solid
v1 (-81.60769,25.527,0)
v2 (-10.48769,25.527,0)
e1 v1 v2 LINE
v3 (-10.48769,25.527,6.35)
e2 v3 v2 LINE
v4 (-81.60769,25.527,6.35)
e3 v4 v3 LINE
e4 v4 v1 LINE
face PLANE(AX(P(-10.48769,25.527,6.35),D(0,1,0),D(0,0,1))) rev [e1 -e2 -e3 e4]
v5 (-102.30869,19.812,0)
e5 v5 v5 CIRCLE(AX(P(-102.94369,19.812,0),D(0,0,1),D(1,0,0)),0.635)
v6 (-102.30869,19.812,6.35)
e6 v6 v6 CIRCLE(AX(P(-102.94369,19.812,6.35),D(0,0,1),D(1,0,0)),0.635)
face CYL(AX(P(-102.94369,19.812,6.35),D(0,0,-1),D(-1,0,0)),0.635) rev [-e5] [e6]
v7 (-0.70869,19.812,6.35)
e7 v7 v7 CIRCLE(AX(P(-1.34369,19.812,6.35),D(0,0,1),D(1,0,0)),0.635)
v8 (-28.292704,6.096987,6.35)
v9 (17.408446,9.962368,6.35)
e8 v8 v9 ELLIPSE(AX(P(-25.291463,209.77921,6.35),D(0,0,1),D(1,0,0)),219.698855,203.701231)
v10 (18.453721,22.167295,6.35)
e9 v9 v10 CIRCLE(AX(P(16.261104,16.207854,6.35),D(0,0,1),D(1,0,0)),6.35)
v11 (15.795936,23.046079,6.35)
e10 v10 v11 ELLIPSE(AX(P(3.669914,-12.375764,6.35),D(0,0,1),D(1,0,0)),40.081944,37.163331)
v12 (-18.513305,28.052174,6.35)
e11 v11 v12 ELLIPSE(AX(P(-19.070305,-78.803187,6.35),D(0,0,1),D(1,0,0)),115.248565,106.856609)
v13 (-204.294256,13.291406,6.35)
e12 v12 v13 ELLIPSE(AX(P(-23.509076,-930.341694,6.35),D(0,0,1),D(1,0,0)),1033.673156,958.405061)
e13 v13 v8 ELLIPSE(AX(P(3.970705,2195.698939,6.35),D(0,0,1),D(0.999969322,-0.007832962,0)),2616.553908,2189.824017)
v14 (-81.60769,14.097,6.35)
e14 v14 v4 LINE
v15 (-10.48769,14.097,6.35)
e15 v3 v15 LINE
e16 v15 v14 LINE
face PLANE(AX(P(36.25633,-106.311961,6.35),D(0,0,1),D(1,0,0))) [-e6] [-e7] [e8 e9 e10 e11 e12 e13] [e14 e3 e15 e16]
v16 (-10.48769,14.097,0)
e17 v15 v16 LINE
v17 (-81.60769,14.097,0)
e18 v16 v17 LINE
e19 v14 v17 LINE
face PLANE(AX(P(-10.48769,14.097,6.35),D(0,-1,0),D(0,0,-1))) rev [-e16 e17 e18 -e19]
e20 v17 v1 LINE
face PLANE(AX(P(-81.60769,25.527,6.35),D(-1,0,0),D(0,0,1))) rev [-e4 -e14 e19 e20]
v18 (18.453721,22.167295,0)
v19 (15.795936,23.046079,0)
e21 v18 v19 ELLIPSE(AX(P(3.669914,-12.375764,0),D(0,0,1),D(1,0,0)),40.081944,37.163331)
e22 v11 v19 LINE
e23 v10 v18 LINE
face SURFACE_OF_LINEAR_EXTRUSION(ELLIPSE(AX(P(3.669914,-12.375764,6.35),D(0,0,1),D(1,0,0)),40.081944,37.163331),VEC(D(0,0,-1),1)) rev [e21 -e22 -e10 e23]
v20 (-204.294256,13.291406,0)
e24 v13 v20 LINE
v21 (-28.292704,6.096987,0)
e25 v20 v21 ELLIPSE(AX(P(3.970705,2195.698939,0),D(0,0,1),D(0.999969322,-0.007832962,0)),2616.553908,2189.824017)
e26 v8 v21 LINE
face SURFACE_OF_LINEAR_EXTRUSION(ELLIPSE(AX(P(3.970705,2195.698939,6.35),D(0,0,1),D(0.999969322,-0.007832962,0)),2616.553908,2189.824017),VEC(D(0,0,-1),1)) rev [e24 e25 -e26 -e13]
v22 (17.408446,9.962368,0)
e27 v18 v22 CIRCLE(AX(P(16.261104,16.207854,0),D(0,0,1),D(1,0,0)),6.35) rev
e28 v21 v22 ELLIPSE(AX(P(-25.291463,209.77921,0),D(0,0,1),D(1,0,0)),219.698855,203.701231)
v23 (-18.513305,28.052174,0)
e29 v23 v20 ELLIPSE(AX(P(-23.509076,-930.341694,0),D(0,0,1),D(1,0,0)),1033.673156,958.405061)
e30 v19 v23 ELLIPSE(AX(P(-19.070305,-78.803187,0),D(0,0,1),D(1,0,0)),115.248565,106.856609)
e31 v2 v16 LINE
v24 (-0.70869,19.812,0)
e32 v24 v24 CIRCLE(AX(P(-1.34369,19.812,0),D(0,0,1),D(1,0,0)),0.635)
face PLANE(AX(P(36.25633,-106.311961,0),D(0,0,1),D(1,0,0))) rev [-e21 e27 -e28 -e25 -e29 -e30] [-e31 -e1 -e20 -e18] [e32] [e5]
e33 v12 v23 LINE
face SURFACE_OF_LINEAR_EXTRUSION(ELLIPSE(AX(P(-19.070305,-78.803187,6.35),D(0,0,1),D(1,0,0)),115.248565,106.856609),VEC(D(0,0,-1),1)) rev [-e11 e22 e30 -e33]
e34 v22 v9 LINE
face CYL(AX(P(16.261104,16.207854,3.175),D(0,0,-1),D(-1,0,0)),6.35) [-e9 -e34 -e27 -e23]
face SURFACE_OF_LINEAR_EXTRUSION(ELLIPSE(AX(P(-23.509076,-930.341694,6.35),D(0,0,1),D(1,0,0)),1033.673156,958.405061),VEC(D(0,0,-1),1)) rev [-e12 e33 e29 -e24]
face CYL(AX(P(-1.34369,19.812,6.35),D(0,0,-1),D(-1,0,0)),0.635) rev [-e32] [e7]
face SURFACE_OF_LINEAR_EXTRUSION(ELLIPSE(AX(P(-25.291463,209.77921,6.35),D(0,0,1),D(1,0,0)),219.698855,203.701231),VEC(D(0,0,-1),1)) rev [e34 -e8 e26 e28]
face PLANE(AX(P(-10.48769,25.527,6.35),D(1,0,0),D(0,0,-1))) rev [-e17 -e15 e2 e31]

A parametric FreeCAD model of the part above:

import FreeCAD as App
import Part
import Sketcher
Q = App.Units.Quantity


def edges_at(feature, points):
    """Names of the edges that pass closest to the given points."""
    edges = feature.Shape.Edges
    near = lambda p: min(range(len(edges)), key=lambda i: edges[i].distToShape(Part.Vertex(*p))[0])
    return sorted({f"Edge{near(p) + 1}" for p in points})


def add_polygon(sketch, points):
    """Adds a closed chain of lines whose ends are joined by coincident constraints."""
    first, n = sketch.GeometryCount, len(points)
    for a, b in zip(points, points[1:] + points[:1]):
        sketch.addGeometry(Part.LineSegment(App.Vector(*a, 0), App.Vector(*b, 0)), False)
    for i in range(n):
        sketch.addConstraint(Sketcher.Constraint("Coincident", first + i, 2, first + (i + 1) % n, 1))

doc = App.newDocument("Part")
body = doc.addObject("PartDesign::Body", "Body")

# Sketch on XY plane
sketch1 = doc.addObject("Sketcher::SketchObject", "Sketch")
body.addObject(sketch1)
sketch1.AttachmentSupport = (doc.XY_Plane, [""])
sketch1.MapMode = "FlatFace"
sketch1.addGeometry(Part.BSplineCurve([App.Vector(36.979706, 32.461234, 0), App.Vector(-84.593484, 33.006023, 0), App.Vector(-204.294256, 13.291406, 0)], [3, 3], [1.565963281, 1.746596348], False, 2, [1, 0.995924234, 1], False), False)
sketch1.addGeometry(Part.BSplineCurve([App.Vector(-204.294256, 13.291406, 0), App.Vector(-90.184781, 5.397939, 0), App.Vector(24.279188, 3.948005, 0)], [3, 3], [4.63926443, 4.706613661], False, 2, [1, 0.999433064, 1], False), False)
sketch1.addGeometry(Part.BSplineCurve([App.Vector(24.279188, 3.948005, 0), App.Vector(64.568077, 3.437659, 0), App.Vector(103.433891, 13.291406, 0)], [3, 3], [4.698727851, 4.979307673], False, 2, [1, 0.9901755, 1], False), False)
sketch1.addGeometry(Part.BSplineCurve([App.Vector(103.433891, 13.291406, 0), App.Vector(94.233758, 22.223302, 0), App.Vector(81.537163, 25.959813, 0)], [3, 3], [0.762399197, 1.263449558], False, 2, [1, 0.968782356, 1], False), False)
sketch1.addGeometry(Part.BSplineCurve([App.Vector(81.537163, 25.959813, 0), App.Vector(59.792823, 32.359005, 0), App.Vector(36.979706, 32.461234, 0)], [3, 3], [1.263449558, 1.565963281], False, 2, [1, 0.988582474, 1], False), False)
sketch1.addConstraint(Sketcher.Constraint("Block", 0))
sketch1.addConstraint(Sketcher.Constraint("Block", 1))
sketch1.addConstraint(Sketcher.Constraint("Block", 2))
sketch1.addConstraint(Sketcher.Constraint("Block", 3))
sketch1.addConstraint(Sketcher.Constraint("Block", 4))
pad1 = doc.addObject("PartDesign::Pad", "Pad")
body.addObject(pad1)
pad1.Profile = sketch1
pad1.Length = Q("0.25 in")
doc.recompute()

fillet = doc.addObject("PartDesign::Fillet", "Fillet")
body.addObject(fillet)
fillet.Base = (pad1, edges_at(pad1, [(103.434, 13.291, 3.175)]))
fillet.Radius = Q("0.25 in")

# Sketch on XY plane
sketch2 = doc.addObject("Sketcher::SketchObject", "Sketch001")
body.addObject(sketch2)
sketch2.AttachmentSupport = (doc.XY_Plane, [""])
sketch2.MapMode = "FlatFace"
add_polygon(sketch2, [(-10, 26), (-10, 14), (-82, 14), (-82, 26)])  # lines 0-3
sketch2.addConstraint(Sketcher.Constraint("Vertical", 0))
sketch2.addConstraint(Sketcher.Constraint("Horizontal", 1))
sketch2.addConstraint(Sketcher.Constraint("Vertical", 2))
sketch2.addConstraint(Sketcher.Constraint("Horizontal", 3))
sketch2.addConstraint(Sketcher.Constraint("DistanceX", 1, 2, 1, 1, Q("2.8 in")))
sketch2.addConstraint(Sketcher.Constraint("DistanceY", 0, 2, 0, 1, Q("0.45 in")))
sketch2.addConstraint(Sketcher.Constraint("DistanceY", -1, 1, 0, 2, Q("0.555 in")))
sketch2.addConstraint(Sketcher.Constraint("DistanceX", 0, 2, -1, 1, Q("10.48769 mm")))
pocket1 = doc.addObject("PartDesign::Pocket", "Pocket")
body.addObject(pocket1)
pocket1.Profile = sketch2
pocket1.Type = "ThroughAll"
pocket1.Reversed = True

# Sketch on XY plane
sketch3 = doc.addObject("Sketcher::SketchObject", "Sketch002")
body.addObject(sketch3)
sketch3.AttachmentSupport = (doc.XY_Plane, [""])
sketch3.MapMode = "FlatFace"
sketch3.addGeometry(Part.Circle(App.Vector(-1.3, 19.8, 0), App.Vector(0, 0, 1), 0.6), False)
sketch3.addGeometry(Part.Circle(App.Vector(-102.9, 19.8, 0), App.Vector(0, 0, 1), 0.6), False)
sketch3.addConstraint(Sketcher.Constraint("Equal", 0, 1))
sketch3.addConstraint(Sketcher.Constraint("Horizontal", 0, 3, 1, 3))
sketch3.addConstraint(Sketcher.Constraint("Diameter", 0, Q("0.05 in")))
sketch3.addConstraint(Sketcher.Constraint("DistanceX", 1, 3, 0, 3, Q("4 in")))
sketch3.addConstraint(Sketcher.Constraint("DistanceY", -1, 1, 0, 3, Q("0.78 in")))
sketch3.addConstraint(Sketcher.Constraint("DistanceX", 0, 3, -1, 1, Q("1.34369 mm")))
pocket2 = doc.addObject("PartDesign::Pocket", "Pocket001")
body.addObject(pocket2)
pocket2.Profile = sketch3
pocket2.Type = "ThroughAll"
pocket2.Reversed = True

# Sketch on XY plane
sketch4 = doc.addObject("Sketcher::SketchObject", "Sketch003")
body.addObject(sketch4)
sketch4.AttachmentSupport = (doc.XY_Plane, [""])
sketch4.MapMode = "FlatFace"
add_polygon(sketch4, [(-235.343, 63.525), (-235.343, -27.126), (125.822, -27.126), (125.822, 63.525)])  # lines 0-3
sketch4.addGeometry(Part.BSplineCurve([App.Vector(-18.513305, 28.052174, 0), App.Vector(-112.124662, 28.471661, 0), App.Vector(-204.294256, 13.291406, 0)], [3, 3], [1.565963281, 1.746596348], False, 2, [1, 0.995924234, 1], False), False)  # 4
sketch4.addGeometry(Part.BSplineCurve([App.Vector(15.795936, 23.046079, 0), App.Vector(-0.947205, 27.973457, 0), App.Vector(-18.513305, 28.052174, 0)], [3, 3], [1.263449558, 1.565963281], False, 2, [1, 0.988582474, 1], False), False)  # 5
sketch4.addGeometry(Part.BSplineCurve([App.Vector(32.656417, 13.291406, 0), App.Vector(25.572315, 20.168966, 0), App.Vector(15.795936, 23.046079, 0)], [3, 3], [0.762399197, 1.263449558], False, 2, [1, 0.968782356, 1], False), False)  # 6
sketch4.addGeometry(Part.BSplineCurve([App.Vector(-28.292704, 6.096987, 0), App.Vector(2.72974, 5.704021, 0), App.Vector(32.656417, 13.291406, 0)], [3, 3], [4.698727851, 4.979307673], False, 2, [1, 0.9901755, 1], False), False)  # 7
sketch4.addGeometry(Part.BSplineCurve([App.Vector(-204.294256, 13.291406, 0), App.Vector(-116.429961, 7.213436, 0), App.Vector(-28.292704, 6.096987, 0)], [3, 3], [1.497671776, 1.565021007], False, 2, [1, 0.999433064, 1], False), False)  # 8
sketch4.addConstraint(Sketcher.Constraint("Block", 4))
sketch4.addConstraint(Sketcher.Constraint("Block", 5))
sketch4.addConstraint(Sketcher.Constraint("Block", 6))
sketch4.addConstraint(Sketcher.Constraint("Block", 7))
sketch4.addConstraint(Sketcher.Constraint("Block", 8))
sketch4.addConstraint(Sketcher.Constraint("Vertical", 0))
sketch4.addConstraint(Sketcher.Constraint("Horizontal", 1))
sketch4.addConstraint(Sketcher.Constraint("Vertical", 2))
sketch4.addConstraint(Sketcher.Constraint("Horizontal", 3))
sketch4.addConstraint(Sketcher.Constraint("DistanceX", 1, 1, 1, 2, Q("361.165 mm")))
sketch4.addConstraint(Sketcher.Constraint("DistanceY", 0, 2, 0, 1, Q("90.651 mm")))
sketch4.addConstraint(Sketcher.Constraint("DistanceX", 0, 2, -1, 1, Q("235.343 mm")))
sketch4.addConstraint(Sketcher.Constraint("DistanceY", 0, 2, -1, 1, Q("27.126 mm")))
pocket3 = doc.addObject("PartDesign::Pocket", "Pocket002")
body.addObject(pocket3)
pocket3.Profile = sketch4
pocket3.Type = "ThroughAll"
pocket3.Reversed = True
doc.recompute()

fillet2 = doc.addObject("PartDesign::Fillet", "Fillet001")
body.addObject(fillet2)
fillet2.Base = (pocket3, edges_at(pocket3, [(32.656, 13.291, 3.175)]))
fillet2.Radius = Q("0.25 in")

doc.recompute()
